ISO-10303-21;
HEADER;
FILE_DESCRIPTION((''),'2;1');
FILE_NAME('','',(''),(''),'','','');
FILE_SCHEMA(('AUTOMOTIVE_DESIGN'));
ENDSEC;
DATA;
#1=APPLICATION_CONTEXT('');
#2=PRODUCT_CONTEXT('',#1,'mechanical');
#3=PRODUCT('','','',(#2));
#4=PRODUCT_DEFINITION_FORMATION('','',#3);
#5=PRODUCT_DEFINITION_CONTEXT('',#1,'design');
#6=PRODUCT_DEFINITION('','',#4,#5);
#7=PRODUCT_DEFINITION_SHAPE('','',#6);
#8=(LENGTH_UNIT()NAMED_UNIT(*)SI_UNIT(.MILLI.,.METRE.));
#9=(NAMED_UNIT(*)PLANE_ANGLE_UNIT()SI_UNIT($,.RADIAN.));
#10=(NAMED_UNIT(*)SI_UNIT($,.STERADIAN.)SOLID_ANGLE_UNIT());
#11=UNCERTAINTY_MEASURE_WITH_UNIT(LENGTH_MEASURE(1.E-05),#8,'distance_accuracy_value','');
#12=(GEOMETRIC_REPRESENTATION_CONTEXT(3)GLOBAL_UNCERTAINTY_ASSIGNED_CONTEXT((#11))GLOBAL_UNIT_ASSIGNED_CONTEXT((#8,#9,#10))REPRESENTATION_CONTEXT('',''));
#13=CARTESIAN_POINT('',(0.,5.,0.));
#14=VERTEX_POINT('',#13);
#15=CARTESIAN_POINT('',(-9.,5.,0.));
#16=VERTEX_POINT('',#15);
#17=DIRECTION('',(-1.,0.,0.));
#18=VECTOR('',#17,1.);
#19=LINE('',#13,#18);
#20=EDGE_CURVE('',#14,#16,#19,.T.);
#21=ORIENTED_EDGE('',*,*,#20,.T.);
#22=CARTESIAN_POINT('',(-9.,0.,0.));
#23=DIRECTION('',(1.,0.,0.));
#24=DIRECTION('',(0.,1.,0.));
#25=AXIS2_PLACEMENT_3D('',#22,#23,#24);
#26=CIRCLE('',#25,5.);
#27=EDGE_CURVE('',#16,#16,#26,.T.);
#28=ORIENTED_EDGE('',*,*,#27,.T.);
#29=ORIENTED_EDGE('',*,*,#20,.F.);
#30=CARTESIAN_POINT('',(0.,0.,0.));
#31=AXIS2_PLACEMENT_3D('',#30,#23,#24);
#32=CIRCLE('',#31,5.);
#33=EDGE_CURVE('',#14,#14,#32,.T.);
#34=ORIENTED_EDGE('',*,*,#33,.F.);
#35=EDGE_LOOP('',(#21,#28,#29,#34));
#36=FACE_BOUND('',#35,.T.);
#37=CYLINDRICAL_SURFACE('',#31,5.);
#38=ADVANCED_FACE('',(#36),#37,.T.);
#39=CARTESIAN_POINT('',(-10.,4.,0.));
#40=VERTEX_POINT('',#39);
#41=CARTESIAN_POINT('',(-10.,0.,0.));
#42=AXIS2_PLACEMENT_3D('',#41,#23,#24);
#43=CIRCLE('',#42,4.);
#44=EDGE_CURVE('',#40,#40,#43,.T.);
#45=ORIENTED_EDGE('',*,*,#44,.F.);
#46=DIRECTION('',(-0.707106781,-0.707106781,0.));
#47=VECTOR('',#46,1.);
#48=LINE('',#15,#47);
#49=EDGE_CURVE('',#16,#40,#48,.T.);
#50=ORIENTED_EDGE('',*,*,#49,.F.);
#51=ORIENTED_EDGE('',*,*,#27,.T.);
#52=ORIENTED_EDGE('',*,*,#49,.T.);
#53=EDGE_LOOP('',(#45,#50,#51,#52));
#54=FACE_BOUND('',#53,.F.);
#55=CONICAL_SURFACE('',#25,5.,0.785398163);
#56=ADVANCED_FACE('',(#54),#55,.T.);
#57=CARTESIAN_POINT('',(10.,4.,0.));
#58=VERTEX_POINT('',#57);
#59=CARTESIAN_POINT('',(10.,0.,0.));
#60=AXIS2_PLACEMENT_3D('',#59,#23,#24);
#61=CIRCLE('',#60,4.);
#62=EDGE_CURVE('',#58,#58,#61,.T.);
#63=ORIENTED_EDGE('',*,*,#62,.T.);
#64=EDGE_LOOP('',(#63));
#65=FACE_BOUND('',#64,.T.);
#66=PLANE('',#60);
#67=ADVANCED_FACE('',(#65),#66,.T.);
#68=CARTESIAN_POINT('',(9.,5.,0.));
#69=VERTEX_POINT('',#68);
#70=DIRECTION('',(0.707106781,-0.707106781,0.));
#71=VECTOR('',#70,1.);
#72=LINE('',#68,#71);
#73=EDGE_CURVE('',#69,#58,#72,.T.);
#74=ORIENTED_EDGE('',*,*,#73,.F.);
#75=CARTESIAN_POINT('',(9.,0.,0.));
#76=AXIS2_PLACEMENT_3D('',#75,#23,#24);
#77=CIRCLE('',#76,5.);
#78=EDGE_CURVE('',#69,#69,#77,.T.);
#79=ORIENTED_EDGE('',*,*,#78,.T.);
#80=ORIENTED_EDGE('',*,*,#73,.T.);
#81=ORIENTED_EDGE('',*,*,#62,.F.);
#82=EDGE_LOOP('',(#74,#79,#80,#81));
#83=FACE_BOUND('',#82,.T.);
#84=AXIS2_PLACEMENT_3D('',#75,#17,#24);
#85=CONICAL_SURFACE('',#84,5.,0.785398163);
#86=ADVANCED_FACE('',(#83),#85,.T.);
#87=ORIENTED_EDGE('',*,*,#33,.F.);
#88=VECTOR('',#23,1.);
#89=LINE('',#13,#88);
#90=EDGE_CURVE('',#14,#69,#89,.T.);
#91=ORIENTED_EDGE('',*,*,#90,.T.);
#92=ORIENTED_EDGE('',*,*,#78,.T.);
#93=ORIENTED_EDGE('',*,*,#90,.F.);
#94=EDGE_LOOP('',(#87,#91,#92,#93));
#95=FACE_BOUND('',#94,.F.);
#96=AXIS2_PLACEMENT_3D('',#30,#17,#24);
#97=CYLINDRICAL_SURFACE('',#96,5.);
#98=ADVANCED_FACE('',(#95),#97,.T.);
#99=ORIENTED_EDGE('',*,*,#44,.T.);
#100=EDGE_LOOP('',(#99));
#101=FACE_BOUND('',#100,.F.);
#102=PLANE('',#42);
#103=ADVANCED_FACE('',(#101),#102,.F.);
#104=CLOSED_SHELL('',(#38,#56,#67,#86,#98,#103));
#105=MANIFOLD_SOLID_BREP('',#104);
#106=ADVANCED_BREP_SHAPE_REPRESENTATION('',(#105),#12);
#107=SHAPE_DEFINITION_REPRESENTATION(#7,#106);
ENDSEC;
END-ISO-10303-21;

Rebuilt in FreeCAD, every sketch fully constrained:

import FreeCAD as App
import Part
import Sketcher


def edges_at(feature, points):
    """Names of the edges that pass closest to the given points."""
    edges = feature.Shape.Edges
    near = lambda p: min(range(len(edges)), key=lambda i: edges[i].distToShape(Part.Vertex(*p))[0])
    return sorted({f"Edge{near(p) + 1}" for p in points})

doc = App.newDocument("Part")
params = doc.addObject("Spreadsheet::Sheet", "Params")
for row, (alias, value) in enumerate([
    ("sketch1_diameter", "10 mm"),
    ("pad1_length", "20 mm"),
    ("chamfer_size", "1 mm"),
], start=1):
    params.set(f"A{row}", alias)
    params.set(f"B{row}", "=" + value)
    params.setAlias(f"B{row}", alias)

body = doc.addObject("PartDesign::Body", "Body")

# Sketch on YZ plane
sketch1 = body.newObject("Sketcher::SketchObject", "Sketch")
sketch1.AttachmentSupport = (doc.getObject("YZ_Plane"), [""])
sketch1.MapMode = "FlatFace"
sketch1.addGeometry(Part.Circle(App.Vector(0, 0, 0), App.Vector(0, 0, 1), 5), False)
sketch1.addConstraint([
    Sketcher.Constraint("Coincident", 0, 3, -1, 1),
    Sketcher.Constraint("Diameter", 0, 10.0),
])
sketch1.setExpression("Constraints[1]", "Params.sketch1_diameter")
pad1 = body.newObject("PartDesign::Pad", "Pad")
pad1.Profile = sketch1
pad1.setExpression("Length", "Params.pad1_length")
pad1.Midplane = True
doc.recompute()

chamfer = body.newObject("PartDesign::Chamfer", "Chamfer")
chamfer.Base = (pad1, edges_at(pad1, [(10, -5, 0), (-10, -5, 0)]))
chamfer.setExpression("Size", "Params.chamfer_size")

doc.recompute()
